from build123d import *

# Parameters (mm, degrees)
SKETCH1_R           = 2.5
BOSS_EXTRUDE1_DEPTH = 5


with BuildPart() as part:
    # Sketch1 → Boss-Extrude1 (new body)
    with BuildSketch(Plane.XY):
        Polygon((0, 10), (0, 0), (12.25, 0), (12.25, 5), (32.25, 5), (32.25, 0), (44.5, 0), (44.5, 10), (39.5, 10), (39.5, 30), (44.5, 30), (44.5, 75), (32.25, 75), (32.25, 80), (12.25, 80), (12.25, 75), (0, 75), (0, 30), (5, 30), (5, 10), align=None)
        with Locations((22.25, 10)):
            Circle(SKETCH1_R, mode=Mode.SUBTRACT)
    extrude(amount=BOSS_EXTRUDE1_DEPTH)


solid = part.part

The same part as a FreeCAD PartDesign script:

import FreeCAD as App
import Part
import Sketcher

V = App.Vector


def add_polygon(sketch, points):
    """Adds a closed chain of lines whose ends are joined by coincident constraints."""
    first, n = sketch.GeometryCount, len(points)
    for a, b in zip(points, points[1:] + points[:1]):
        sketch.addGeometry(Part.LineSegment(App.Vector(*a, 0), App.Vector(*b, 0)), False)
    for i in range(n):
        sketch.addConstraint(Sketcher.Constraint("Coincident", first + i, 2, first + (i + 1) % n, 1))

doc = App.newDocument("Part")
body = doc.addObject("PartDesign::Body", "Body")

# Sketch on XY plane
sketch1 = doc.addObject("Sketcher::SketchObject", "Sketch")
body.addObject(sketch1)
sketch1.AttachmentSupport = (doc.XY_Plane, [""])
sketch1.MapMode = "FlatFace"
add_polygon(sketch1, [(0, 10), (0, 0), (12.2, 0), (12.2, 5), (32.2, 5), (32.2, 0), (44.5, 0), (44.5, 10), (39.5, 10), (39.5, 30), (44.5, 30), (44.5, 75), (32.2, 75), (32.2, 80), (12.2, 80), (12.2, 75), (0, 75), (0, 30), (5, 30), (5, 10)])  # lines 0-19
sketch1.addGeometry(Part.Circle(V(22.2, 10, 0), V(0, 0, 1), 2.5), False)  # 20
sketch1.addConstraint(Sketcher.Constraint("Vertical", 0))
sketch1.addConstraint(Sketcher.Constraint("Horizontal", 1))
sketch1.addConstraint(Sketcher.Constraint("Vertical", 2))
sketch1.addConstraint(Sketcher.Constraint("Horizontal", 3))
sketch1.addConstraint(Sketcher.Constraint("Vertical", 4))
sketch1.addConstraint(Sketcher.Constraint("Horizontal", 5))
sketch1.addConstraint(Sketcher.Constraint("Vertical", 6))
sketch1.addConstraint(Sketcher.Constraint("Horizontal", 7))
sketch1.addConstraint(Sketcher.Constraint("Vertical", 8))
sketch1.addConstraint(Sketcher.Constraint("Horizontal", 9))
sketch1.addConstraint(Sketcher.Constraint("Vertical", 10))
sketch1.addConstraint(Sketcher.Constraint("Horizontal", 11))
sketch1.addConstraint(Sketcher.Constraint("Vertical", 12))
sketch1.addConstraint(Sketcher.Constraint("Horizontal", 13))
sketch1.addConstraint(Sketcher.Constraint("Vertical", 14))
sketch1.addConstraint(Sketcher.Constraint("Horizontal", 15))
sketch1.addConstraint(Sketcher.Constraint("Vertical", 16))
sketch1.addConstraint(Sketcher.Constraint("Horizontal", 17))
sketch1.addConstraint(Sketcher.Constraint("Vertical", 18))
sketch1.addConstraint(Sketcher.Constraint("Horizontal", 19))
sketch1.addConstraint(Sketcher.Constraint("Coincident", 0, 2, -1, 1))
sketch1.addConstraint(Sketcher.Constraint("PointOnObject", 4, 2, -1))
sketch1.addConstraint(Sketcher.Constraint("PointOnObject", 15, 2, -2))
sketch1.addConstraint(Sketcher.Constraint("Horizontal", 20, 3, 6, 2))
sketch1.addConstraint(Sketcher.Constraint("Horizontal", 11, 2, 14, 2))
sketch1.addConstraint(Sketcher.Constraint("Horizontal", 9, 2, 16, 2))
sketch1.addConstraint(Sketcher.Constraint("Horizontal", 7, 2, 18, 2))
sketch1.addConstraint(Sketcher.Constraint("Vertical", 6, 2, 9, 2))
sketch1.addConstraint(Sketcher.Constraint("Vertical", 4, 2, 11, 2))
sketch1.addConstraint(Sketcher.Constraint("Vertical", 2, 2, 13, 2))
sketch1.addConstraint(Sketcher.Constraint("Equal", 1, 5))
sketch1.addConstraint(Sketcher.Constraint("Equal", 9, 17))
sketch1.addConstraint(Sketcher.Constraint("Equal", 19, 2))
sketch1.addConstraint(Sketcher.Constraint("Equal", 13, 8))
sketch1.addConstraint(Sketcher.Constraint("Equal", 4, 12))
sketch1.addConstraint(Sketcher.Constraint("Diameter", 20, 5.0))
sketch1.addConstraint(Sketcher.Constraint("DistanceX", 3, 1, 3, 2, 20.0))
sketch1.addConstraint(Sketcher.Constraint("DistanceX", 7, 2, 7, 1, 5.0))
sketch1.addConstraint(Sketcher.Constraint("DistanceY", 0, 2, 0, 1, 10.0))
sketch1.addConstraint(Sketcher.Constraint("DistanceY", 10, 1, 10, 2, 45.0))
sketch1.addConstraint(Sketcher.Constraint("DistanceX", 1, 2, 20, 3, 10.0))
sketch1.addConstraint(Sketcher.Constraint("DistanceX", 1, 1, 1, 2, 12.25))
pad1 = doc.addObject("PartDesign::Pad", "Pad")
body.addObject(pad1)
pad1.Profile = sketch1
pad1.Length = 5

doc.recompute()
